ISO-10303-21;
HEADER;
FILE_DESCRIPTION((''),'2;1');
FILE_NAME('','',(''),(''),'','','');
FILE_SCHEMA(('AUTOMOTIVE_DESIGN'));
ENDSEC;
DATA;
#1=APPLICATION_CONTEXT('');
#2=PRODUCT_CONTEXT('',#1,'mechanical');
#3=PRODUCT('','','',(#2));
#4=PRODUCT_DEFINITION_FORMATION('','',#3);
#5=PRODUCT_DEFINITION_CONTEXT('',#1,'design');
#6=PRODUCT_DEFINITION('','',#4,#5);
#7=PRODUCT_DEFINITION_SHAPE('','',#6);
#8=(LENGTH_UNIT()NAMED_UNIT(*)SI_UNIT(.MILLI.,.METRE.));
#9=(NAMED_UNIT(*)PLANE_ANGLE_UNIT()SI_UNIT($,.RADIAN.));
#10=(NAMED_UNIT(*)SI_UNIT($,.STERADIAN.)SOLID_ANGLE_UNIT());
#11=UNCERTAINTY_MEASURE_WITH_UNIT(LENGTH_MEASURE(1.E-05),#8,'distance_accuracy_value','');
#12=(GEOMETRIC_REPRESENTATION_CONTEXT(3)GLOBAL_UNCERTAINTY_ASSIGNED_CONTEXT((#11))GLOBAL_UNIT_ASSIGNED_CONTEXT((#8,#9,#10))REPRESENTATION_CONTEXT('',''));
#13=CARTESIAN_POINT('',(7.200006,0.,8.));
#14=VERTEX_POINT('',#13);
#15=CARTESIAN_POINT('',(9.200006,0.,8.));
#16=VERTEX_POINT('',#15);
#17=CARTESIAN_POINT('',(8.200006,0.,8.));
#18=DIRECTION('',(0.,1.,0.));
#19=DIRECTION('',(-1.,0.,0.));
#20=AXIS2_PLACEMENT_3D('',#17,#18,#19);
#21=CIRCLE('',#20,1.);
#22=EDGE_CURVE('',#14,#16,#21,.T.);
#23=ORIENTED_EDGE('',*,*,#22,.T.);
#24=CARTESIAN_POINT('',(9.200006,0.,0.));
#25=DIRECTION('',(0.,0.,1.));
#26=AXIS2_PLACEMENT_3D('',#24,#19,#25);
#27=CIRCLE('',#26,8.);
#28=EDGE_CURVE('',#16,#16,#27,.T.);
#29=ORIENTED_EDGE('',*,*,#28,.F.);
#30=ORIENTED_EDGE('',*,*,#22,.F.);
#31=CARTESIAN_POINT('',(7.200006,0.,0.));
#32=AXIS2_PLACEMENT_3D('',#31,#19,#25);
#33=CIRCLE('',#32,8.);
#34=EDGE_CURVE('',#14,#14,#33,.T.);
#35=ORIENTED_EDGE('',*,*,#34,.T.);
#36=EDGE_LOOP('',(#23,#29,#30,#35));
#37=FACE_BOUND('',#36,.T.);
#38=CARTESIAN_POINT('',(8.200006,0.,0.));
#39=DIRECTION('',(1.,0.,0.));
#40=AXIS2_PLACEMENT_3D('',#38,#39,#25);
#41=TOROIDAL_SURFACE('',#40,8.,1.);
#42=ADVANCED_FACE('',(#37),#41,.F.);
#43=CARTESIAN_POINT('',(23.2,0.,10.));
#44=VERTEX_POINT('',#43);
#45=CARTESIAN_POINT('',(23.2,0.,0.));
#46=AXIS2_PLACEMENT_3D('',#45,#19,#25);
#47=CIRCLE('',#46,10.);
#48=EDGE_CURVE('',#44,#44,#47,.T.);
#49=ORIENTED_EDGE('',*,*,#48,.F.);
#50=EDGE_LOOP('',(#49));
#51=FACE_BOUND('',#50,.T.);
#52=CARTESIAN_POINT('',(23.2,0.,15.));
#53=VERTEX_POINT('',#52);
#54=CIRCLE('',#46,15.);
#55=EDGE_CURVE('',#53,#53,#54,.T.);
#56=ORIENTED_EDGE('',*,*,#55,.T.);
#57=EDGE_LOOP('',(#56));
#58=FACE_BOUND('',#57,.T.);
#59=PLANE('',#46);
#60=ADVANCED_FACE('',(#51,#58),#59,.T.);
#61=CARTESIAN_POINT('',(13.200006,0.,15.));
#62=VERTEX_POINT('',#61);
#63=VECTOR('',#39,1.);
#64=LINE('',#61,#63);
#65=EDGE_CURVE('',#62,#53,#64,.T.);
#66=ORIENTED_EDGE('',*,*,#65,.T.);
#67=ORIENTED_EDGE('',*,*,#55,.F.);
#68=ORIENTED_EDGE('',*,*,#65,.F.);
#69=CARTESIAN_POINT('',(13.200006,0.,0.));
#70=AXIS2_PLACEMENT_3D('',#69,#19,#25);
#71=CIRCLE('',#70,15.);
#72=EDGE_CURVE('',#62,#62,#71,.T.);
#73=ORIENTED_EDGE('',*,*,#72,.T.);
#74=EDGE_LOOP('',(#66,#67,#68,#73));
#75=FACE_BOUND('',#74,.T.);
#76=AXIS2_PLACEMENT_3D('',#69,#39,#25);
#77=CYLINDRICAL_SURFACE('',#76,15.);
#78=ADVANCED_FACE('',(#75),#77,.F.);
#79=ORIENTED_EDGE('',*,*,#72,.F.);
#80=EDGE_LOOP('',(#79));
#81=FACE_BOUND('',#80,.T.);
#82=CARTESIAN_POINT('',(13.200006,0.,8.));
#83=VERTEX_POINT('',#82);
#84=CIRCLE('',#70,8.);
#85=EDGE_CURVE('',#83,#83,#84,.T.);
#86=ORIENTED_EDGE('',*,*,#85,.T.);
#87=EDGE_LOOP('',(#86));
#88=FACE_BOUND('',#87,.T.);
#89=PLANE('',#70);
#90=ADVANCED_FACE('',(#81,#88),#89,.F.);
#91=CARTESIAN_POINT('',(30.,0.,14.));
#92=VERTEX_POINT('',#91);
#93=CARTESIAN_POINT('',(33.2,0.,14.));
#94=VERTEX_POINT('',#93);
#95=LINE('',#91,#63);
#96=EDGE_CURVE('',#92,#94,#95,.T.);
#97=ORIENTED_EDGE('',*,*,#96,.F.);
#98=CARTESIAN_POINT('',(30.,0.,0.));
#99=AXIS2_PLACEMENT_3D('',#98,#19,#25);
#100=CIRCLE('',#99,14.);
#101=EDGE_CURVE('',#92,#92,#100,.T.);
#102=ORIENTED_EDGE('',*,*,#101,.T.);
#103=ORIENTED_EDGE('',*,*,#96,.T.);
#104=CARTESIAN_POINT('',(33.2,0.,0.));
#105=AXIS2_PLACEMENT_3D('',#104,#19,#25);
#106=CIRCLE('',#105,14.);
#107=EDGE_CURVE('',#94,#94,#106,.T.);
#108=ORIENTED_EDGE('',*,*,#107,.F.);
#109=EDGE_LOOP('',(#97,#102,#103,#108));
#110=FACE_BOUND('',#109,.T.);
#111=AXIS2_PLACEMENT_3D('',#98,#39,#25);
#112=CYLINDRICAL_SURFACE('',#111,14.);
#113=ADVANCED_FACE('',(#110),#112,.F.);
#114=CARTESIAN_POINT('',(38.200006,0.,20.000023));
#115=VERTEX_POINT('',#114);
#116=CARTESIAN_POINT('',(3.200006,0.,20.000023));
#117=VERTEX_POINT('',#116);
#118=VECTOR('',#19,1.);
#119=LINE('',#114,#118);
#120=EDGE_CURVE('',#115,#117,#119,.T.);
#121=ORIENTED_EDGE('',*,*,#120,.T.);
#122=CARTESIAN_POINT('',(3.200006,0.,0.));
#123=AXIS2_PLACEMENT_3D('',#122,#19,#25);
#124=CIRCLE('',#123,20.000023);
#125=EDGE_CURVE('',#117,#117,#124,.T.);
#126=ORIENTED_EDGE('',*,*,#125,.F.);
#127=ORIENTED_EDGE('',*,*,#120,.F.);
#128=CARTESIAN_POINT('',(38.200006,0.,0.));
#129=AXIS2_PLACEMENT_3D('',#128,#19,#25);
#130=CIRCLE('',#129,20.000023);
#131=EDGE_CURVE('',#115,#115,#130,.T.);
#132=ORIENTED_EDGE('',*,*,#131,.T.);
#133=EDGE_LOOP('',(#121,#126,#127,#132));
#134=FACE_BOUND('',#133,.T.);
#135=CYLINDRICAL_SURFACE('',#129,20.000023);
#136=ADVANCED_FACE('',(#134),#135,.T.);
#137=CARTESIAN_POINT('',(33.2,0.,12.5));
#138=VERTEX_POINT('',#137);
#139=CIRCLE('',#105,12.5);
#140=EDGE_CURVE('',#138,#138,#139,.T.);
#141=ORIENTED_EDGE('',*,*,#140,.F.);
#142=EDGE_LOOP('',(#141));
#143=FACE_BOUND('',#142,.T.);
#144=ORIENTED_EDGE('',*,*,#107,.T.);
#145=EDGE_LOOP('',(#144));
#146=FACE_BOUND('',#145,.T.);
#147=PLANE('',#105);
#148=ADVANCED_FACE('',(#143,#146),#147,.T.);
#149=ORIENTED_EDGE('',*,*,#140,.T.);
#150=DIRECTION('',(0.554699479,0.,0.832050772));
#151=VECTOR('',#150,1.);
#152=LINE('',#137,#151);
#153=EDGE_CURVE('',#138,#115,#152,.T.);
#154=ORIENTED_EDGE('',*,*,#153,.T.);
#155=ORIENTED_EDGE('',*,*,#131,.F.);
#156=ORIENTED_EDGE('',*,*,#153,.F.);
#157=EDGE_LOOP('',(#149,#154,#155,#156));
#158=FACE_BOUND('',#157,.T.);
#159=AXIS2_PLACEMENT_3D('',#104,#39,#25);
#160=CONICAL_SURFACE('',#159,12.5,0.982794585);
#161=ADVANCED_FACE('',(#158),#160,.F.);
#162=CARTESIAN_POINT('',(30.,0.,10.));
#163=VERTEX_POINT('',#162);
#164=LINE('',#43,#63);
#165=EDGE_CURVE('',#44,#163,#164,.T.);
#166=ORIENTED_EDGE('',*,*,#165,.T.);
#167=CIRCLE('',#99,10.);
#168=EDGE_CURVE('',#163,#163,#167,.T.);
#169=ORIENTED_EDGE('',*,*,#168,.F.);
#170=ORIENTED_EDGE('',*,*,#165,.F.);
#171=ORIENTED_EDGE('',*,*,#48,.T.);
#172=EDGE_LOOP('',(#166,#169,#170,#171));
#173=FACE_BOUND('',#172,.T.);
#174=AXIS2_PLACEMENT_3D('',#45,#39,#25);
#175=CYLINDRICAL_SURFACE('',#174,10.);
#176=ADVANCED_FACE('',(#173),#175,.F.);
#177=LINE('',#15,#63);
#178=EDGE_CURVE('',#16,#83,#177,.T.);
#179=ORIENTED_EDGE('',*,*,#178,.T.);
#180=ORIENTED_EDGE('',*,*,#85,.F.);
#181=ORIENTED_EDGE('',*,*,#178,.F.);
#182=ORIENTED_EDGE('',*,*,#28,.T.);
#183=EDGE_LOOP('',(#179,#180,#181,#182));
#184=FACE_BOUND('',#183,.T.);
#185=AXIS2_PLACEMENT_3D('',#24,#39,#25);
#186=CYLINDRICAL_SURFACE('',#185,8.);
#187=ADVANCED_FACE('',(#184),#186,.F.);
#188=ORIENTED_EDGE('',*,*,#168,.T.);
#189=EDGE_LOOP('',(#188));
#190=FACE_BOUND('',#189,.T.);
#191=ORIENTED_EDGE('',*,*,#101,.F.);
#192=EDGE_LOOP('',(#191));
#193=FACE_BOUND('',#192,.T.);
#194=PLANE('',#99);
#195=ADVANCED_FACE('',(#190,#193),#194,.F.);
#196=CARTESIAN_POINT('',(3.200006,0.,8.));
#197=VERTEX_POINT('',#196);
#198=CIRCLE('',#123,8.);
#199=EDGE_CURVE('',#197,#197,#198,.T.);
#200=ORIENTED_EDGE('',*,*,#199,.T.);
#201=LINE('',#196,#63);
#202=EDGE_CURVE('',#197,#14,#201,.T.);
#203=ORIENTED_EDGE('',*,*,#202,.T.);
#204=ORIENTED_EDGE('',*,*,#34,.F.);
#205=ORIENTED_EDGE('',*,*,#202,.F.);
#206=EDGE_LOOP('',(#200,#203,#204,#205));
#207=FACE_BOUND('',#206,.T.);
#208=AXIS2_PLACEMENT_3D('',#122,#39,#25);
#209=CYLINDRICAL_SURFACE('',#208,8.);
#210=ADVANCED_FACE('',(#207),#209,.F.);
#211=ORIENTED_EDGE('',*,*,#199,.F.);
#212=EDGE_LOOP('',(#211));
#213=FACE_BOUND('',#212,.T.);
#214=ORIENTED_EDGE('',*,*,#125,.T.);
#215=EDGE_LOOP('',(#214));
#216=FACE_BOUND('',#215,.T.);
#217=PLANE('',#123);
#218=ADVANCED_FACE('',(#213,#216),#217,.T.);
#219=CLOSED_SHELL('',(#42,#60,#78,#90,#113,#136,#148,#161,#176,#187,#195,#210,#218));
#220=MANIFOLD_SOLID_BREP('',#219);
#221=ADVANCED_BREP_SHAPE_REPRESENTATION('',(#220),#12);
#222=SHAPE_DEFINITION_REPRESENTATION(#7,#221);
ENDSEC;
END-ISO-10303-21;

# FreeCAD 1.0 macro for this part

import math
import FreeCAD as App
import Part
import Sketcher
from FreeCAD import Vector
Q = App.Units.Quantity

doc = App.newDocument("Part")
params = doc.addObject("Spreadsheet::Sheet", "Params")
for row, (alias, value) in enumerate([
    ("sketch1_radius", "1 mm"),
    ("sketch1_width", "4 mm"),
    ("sketch1_width2", "35 mm"),
    ("sketch1_height", "7 mm"),
    ("sketch1_height2", "5 mm"),
    ("revolution_angle", "360 deg"),
], start=1):
    params.set(f"A{row}", alias)
    params.set(f"B{row}", "=" + value)
    params.setAlias(f"B{row}", alias)

body = doc.addObject("PartDesign::Body", "Body")

# Sketch on XZ plane
sketch1 = doc.addObject("Sketcher::SketchObject", "Sketch")
body.addObject(sketch1)
sketch1.AttachmentSupport = (doc.XZ_Plane, [""])
sketch1.MapMode = "FlatFace"
sketch1.addGeometry([
    Part.LineSegment(Vector(3.2, 20, 0), Vector(3.2, 8, 0)),  # 0
    Part.LineSegment(Vector(3.2, 8, 0), Vector(7.2, 8, 0)),  # 1
    Part.ArcOfCircle(Part.Circle(Vector(8.2, 8, 0), Vector(0, 0, 1), 1), math.radians(0), math.radians(180)),  # 2
    Part.LineSegment(Vector(9.2, 8, 0), Vector(13.2, 8, 0)),  # 3
    Part.LineSegment(Vector(13.2, 8, 0), Vector(13.2, 15, 0)),  # 4
    Part.LineSegment(Vector(13.2, 15, 0), Vector(23.2, 15, 0)),  # 5
    Part.LineSegment(Vector(23.2, 15, 0), Vector(23.2, 10, 0)),  # 6
    Part.LineSegment(Vector(23.2, 10, 0), Vector(30, 10, 0)),  # 7
    Part.LineSegment(Vector(30, 10, 0), Vector(30, 14, 0)),  # 8
    Part.LineSegment(Vector(30, 14, 0), Vector(33.2, 14, 0)),  # 9
    Part.LineSegment(Vector(33.2, 14, 0), Vector(33.2, 12.5, 0)),  # 10
    Part.LineSegment(Vector(33.2, 12.5, 0), Vector(38.2, 20, 0)),  # 11
    Part.LineSegment(Vector(38.2, 20, 0), Vector(3.2, 20, 0)),  # 12
], False)
sketch1.addConstraint([
    Sketcher.Constraint("Coincident", 0, 2, 1, 1),
    Sketcher.Constraint("Coincident", 1, 2, 2, 2),
    Sketcher.Constraint("Coincident", 2, 1, 3, 1),
    Sketcher.Constraint("Coincident", 3, 2, 4, 1),
    Sketcher.Constraint("Coincident", 4, 2, 5, 1),
    Sketcher.Constraint("Coincident", 5, 2, 6, 1),
    Sketcher.Constraint("Coincident", 6, 2, 7, 1),
    Sketcher.Constraint("Coincident", 7, 2, 8, 1),
    Sketcher.Constraint("Coincident", 8, 2, 9, 1),
    Sketcher.Constraint("Coincident", 9, 2, 10, 1),
    Sketcher.Constraint("Coincident", 10, 2, 11, 1),
    Sketcher.Constraint("Coincident", 11, 2, 12, 1),
    Sketcher.Constraint("Coincident", 12, 2, 0, 1),
    Sketcher.Constraint("Vertical", 0),
    Sketcher.Constraint("Horizontal", 1),
    Sketcher.Constraint("Horizontal", 3),
    Sketcher.Constraint("Vertical", 4),
    Sketcher.Constraint("Horizontal", 5),
    Sketcher.Constraint("Vertical", 6),
    Sketcher.Constraint("Horizontal", 7),
    Sketcher.Constraint("Vertical", 8),
    Sketcher.Constraint("Horizontal", 9),
    Sketcher.Constraint("Vertical", 10),
    Sketcher.Constraint("Horizontal", 12),
    Sketcher.Constraint("Horizontal", 2, 3, 0, 2),
    Sketcher.Constraint("Horizontal", 1, 2, 2, 1),
    Sketcher.Constraint("Equal", 1, 3),
    Sketcher.Constraint("Equal", 3, 8),
    Sketcher.Constraint("Radius", 2, Q("1 mm")),
    Sketcher.Constraint("DistanceX", 1, 1, 1, 2, Q("4 mm")),
    Sketcher.Constraint("DistanceX", 12, 2, 12, 1, Q("35 mm")),
    Sketcher.Constraint("DistanceY", 4, 1, 4, 2, Q("7 mm")),
    Sketcher.Constraint("DistanceY", 6, 2, 6, 1, Q("5 mm")),
    Sketcher.Constraint("DistanceX", 7, 1, 7, 2, Q("6.8 mm")),
    Sketcher.Constraint("DistanceX", 9, 1, 9, 2, Q("3.2 mm")),
    Sketcher.Constraint("DistanceY", 10, 2, 10, 1, Q("1.5 mm")),
    Sketcher.Constraint("DistanceY", -1, 1, 2, 3, Q("8 mm")),
    Sketcher.Constraint("DistanceX", -1, 1, 7, 2, Q("30 mm")),
    Sketcher.Constraint("Angle", 11, Q("56.309982 deg")),
    Sketcher.Constraint("Distance", 11, Q("9.013901 mm")),
])
sketch1.setExpression("Constraints[28]", "Params.sketch1_radius")
sketch1.setExpression("Constraints[29]", "Params.sketch1_width")
sketch1.setExpression("Constraints[30]", "Params.sketch1_width2")
sketch1.setExpression("Constraints[31]", "Params.sketch1_height")
sketch1.setExpression("Constraints[32]", "Params.sketch1_height2")
revolution = doc.addObject("PartDesign::Revolution", "Revolution")
body.addObject(revolution)
revolution.Profile = sketch1
revolution.ReferenceAxis = (sketch1, ["H_Axis"])
revolution.setExpression("Angle", "Params.revolution_angle")

doc.recompute()
